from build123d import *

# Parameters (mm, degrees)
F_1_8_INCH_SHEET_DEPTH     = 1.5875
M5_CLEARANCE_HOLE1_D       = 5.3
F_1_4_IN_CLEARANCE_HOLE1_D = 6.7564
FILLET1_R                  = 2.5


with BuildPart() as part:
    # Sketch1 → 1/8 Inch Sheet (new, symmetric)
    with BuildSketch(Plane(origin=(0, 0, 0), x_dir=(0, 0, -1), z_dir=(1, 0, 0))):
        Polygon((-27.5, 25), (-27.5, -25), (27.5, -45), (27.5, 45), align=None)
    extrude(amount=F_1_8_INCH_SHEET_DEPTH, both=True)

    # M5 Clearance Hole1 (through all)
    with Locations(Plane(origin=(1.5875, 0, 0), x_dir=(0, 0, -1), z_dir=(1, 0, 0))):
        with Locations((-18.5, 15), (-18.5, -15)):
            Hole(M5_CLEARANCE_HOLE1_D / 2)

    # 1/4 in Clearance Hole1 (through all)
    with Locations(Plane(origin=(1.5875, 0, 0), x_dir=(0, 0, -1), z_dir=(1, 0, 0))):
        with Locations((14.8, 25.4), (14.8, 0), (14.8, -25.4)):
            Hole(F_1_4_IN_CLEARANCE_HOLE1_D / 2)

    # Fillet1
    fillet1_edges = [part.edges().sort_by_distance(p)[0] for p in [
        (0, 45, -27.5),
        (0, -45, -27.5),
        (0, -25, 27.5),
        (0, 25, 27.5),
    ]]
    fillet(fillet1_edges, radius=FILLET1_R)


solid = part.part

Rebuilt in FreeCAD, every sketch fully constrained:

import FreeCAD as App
import Part
import Sketcher
from FreeCAD import Vector


def edges_at(feature, points):
    """Names of the edges that pass closest to the given points."""
    edges = feature.Shape.Edges
    near = lambda p: min(range(len(edges)), key=lambda i: edges[i].distToShape(Part.Vertex(*p))[0])
    return sorted({f"Edge{near(p) + 1}" for p in points})


def add_polygon(sketch, points):
    """Adds a closed chain of lines whose ends are joined by coincident constraints."""
    first, n = sketch.GeometryCount, len(points)
    for a, b in zip(points, points[1:] + points[:1]):
        sketch.addGeometry(Part.LineSegment(App.Vector(*a, 0), App.Vector(*b, 0)), False)
    for i in range(n):
        sketch.addConstraint(Sketcher.Constraint("Coincident", first + i, 2, first + (i + 1) % n, 1))

doc = App.newDocument("Part")
params = doc.addObject("Spreadsheet::Sheet", "Params")
for row, (alias, value) in enumerate([
    ("sketch1_width", "50 mm"),
    ("sketch1_width2", "90 mm"),
    ("pad1_length", "3.175 mm"),
    ("sketch2_diameter", "5.3 mm"),
    ("hole_diameter", "5.3 mm"),
    ("hole2_diameter", "6.7564 mm"),
    ("fillet_radius", "2.5 mm"),
], start=1):
    params.set(f"A{row}", alias)
    params.set(f"B{row}", "=" + value)
    params.setAlias(f"B{row}", alias)

body = doc.addObject("PartDesign::Body", "Body")

# Sketch on YZ plane
sketch1 = body.newObject("Sketcher::SketchObject", "Sketch")
sketch1.AttachmentSupport = (doc.getObject("YZ_Plane"), [""])
sketch1.MapMode = "FlatFace"
add_polygon(sketch1, [(25, 28), (-25, 28), (-45, -28), (45, -28)])  # lines 0-3
sketch1.addConstraint(Sketcher.Constraint("Horizontal", 0))
sketch1.addConstraint(Sketcher.Constraint("Horizontal", 2))
sketch1.addConstraint(Sketcher.Constraint("Equal", 1, 3))
sketch1.addConstraint(Sketcher.Constraint("DistanceX", 0, 2, 0, 1, 50.0))
sketch1.addConstraint(Sketcher.Constraint("DistanceX", 2, 1, 2, 2, 90.0))
sketch1.addConstraint(Sketcher.Constraint("DistanceX", 0, 2, -1, 1, 25.0))
sketch1.addConstraint(Sketcher.Constraint("DistanceY", 1, 2, 0, 2, 55.0))
sketch1.addConstraint(Sketcher.Constraint("DistanceY", -1, 1, 0, 2, 27.5))
sketch1.setExpression("Constraints[7]", "Params.sketch1_width")
sketch1.setExpression("Constraints[8]", "Params.sketch1_width2")
pad1 = body.newObject("PartDesign::Pad", "Pad")
pad1.Profile = sketch1
pad1.setExpression("Length", "Params.pad1_length")
pad1.Midplane = True

# Sketch on YZ plane
sketch2 = body.newObject("Sketcher::SketchObject", "Sketch001")
sketch2.AttachmentSupport = (doc.getObject("YZ_Plane"), [""])
sketch2.MapMode = "FlatFace"
sketch2.AttachmentOffset = App.Placement(Vector(0, 0, 1.5875), App.Rotation())
sketch2.addGeometry(Part.Circle(Vector(15, 18.5, 0), Vector(0, 0, 1), 2.6), False)
sketch2.addGeometry(Part.Circle(Vector(-15, 18.5, 0), Vector(0, 0, 1), 2.6), False)
sketch2.addConstraint(Sketcher.Constraint("Equal", 0, 1))
sketch2.addConstraint(Sketcher.Constraint("Symmetric", 0, 3, 1, 3, -2))
sketch2.addConstraint(Sketcher.Constraint("Diameter", 0, 5.3))
sketch2.addConstraint(Sketcher.Constraint("DistanceX", -1, 1, 0, 3, 15.0))
sketch2.addConstraint(Sketcher.Constraint("DistanceY", -1, 1, 0, 3, 18.5))
sketch2.setExpression("Constraints[2]", "Params.sketch2_diameter")
doc.recompute()
hole = body.newObject("PartDesign::Hole", "Hole")
hole.Profile = sketch2
hole.ThreadType = "None"
hole.setExpression("Diameter", "Params.hole_diameter")
hole.DepthType = "ThroughAll"

# Sketch on YZ plane
sketch3 = body.newObject("Sketcher::SketchObject", "Sketch002")
sketch3.AttachmentSupport = (doc.getObject("YZ_Plane"), [""])
sketch3.MapMode = "FlatFace"
sketch3.AttachmentOffset = App.Placement(Vector(0, 0, 1.5875), App.Rotation())
sketch3.addGeometry(Part.Circle(Vector(25.4, -14.8, 0), Vector(0, 0, 1), 3.4), False)
sketch3.addGeometry(Part.Circle(Vector(0, -14.8, 0), Vector(0, 0, 1), 3.4), False)
sketch3.addGeometry(Part.Circle(Vector(-25.4, -14.8, 0), Vector(0, 0, 1), 3.4), False)
sketch3.addConstraint(Sketcher.Constraint("Equal", 0, 1))
sketch3.addConstraint(Sketcher.Constraint("Equal", 1, 2))
sketch3.addConstraint(Sketcher.Constraint("Symmetric", 0, 3, 2, 3, -2))
sketch3.addConstraint(Sketcher.Constraint("PointOnObject", 1, 3, -2))
sketch3.addConstraint(Sketcher.Constraint("Horizontal", 0, 3, 1, 3))
sketch3.addConstraint(Sketcher.Constraint("Diameter", 0, 6.7564))
sketch3.addConstraint(Sketcher.Constraint("DistanceX", -1, 1, 0, 3, 25.4))
sketch3.addConstraint(Sketcher.Constraint("DistanceY", 0, 3, -1, 1, 14.8))
doc.recompute()
hole2 = body.newObject("PartDesign::Hole", "Hole001")
hole2.Profile = sketch3
hole2.ThreadType = "None"
hole2.setExpression("Diameter", "Params.hole2_diameter")
hole2.DepthType = "ThroughAll"
doc.recompute()

fillet = body.newObject("PartDesign::Fillet", "Fillet")
fillet.Base = (hole2, edges_at(hole2, [
    (0, 45, -27.5),
    (0, -45, -27.5),
    (0, -25, 27.5),
    (0, 25, 27.5),
]))
fillet.setExpression("Radius", "Params.fillet_radius")

doc.recompute()
